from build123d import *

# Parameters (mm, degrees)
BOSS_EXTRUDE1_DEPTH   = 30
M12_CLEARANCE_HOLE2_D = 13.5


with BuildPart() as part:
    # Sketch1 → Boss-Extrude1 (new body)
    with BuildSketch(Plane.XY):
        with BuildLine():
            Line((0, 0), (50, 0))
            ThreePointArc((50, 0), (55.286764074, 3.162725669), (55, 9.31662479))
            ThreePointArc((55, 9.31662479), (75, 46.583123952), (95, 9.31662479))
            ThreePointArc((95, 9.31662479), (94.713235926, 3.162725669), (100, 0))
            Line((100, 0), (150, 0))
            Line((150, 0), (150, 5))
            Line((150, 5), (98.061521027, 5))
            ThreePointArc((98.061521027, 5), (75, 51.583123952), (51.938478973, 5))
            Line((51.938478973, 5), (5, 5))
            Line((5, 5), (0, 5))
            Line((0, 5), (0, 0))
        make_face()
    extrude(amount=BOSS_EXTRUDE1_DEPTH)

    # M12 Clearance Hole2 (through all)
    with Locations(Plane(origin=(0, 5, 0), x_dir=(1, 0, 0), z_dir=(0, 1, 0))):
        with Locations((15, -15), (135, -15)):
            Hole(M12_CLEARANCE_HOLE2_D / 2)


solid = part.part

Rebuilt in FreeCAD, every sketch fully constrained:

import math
import FreeCAD as App
import Part
import Sketcher
from FreeCAD import Vector
Q = App.Units.Quantity

doc = App.newDocument("Part")
body = doc.addObject("PartDesign::Body", "Body")

# Sketch on XY plane
sketch1 = body.newObject("Sketcher::SketchObject", "Sketch")
sketch1.AttachmentSupport = (doc.getObject("XY_Plane"), [""])
sketch1.MapMode = "FlatFace"
sketch1.addGeometry([
    Part.LineSegment(Vector(0, 0, 0), Vector(50, 0, 0)),  # 0
    Part.ArcOfCircle(Part.Circle(Vector(50, 6, 0), Vector(0, 0, 1), 6), math.radians(-90), math.radians(34)),  # 1
    Part.ArcOfCircle(Part.Circle(Vector(75, 23, 0), Vector(0, 0, 1), 24), math.radians(-34), math.radians(214)),  # 2
    Part.ArcOfCircle(Part.Circle(Vector(100, 6, 0), Vector(0, 0, 1), 6), math.radians(146), math.radians(270)),  # 3
    Part.LineSegment(Vector(100, 0, 0), Vector(150, 0, 0)),  # 4
    Part.LineSegment(Vector(150, 0, 0), Vector(150, 5, 0)),  # 5
    Part.LineSegment(Vector(150, 5, 0), Vector(98, 5, 0)),  # 6
    Part.ArcOfCircle(Part.Circle(Vector(75, 23, 0), Vector(0, 0, 1), 29), math.radians(-37), math.radians(217)),  # 7
    Part.LineSegment(Vector(52, 5, 0), Vector(0, 5, 0)),  # 8
    Part.LineSegment(Vector(0, 5, 0), Vector(0, 0, 0)),  # 9
], False)
sketch1.addConstraint([
    Sketcher.Constraint("Tangent", 0, 2, 1, 1),
    Sketcher.Constraint("Tangent", 1, 2, 2, 2),
    Sketcher.Constraint("Tangent", 2, 1, 3, 1),
    Sketcher.Constraint("Tangent", 3, 2, 4, 1),
    Sketcher.Constraint("Coincident", 4, 2, 5, 1),
    Sketcher.Constraint("Coincident", 5, 2, 6, 1),
    Sketcher.Constraint("Coincident", 6, 2, 7, 1),
    Sketcher.Constraint("Coincident", 7, 2, 8, 1),
    Sketcher.Constraint("Coincident", 8, 2, 9, 1),
    Sketcher.Constraint("Coincident", 9, 2, 0, 1),
    Sketcher.Constraint("Horizontal", 0),
    Sketcher.Constraint("Horizontal", 4),
    Sketcher.Constraint("Vertical", 5),
    Sketcher.Constraint("Horizontal", 6),
    Sketcher.Constraint("Horizontal", 8),
    Sketcher.Constraint("Vertical", 9),
    Sketcher.Constraint("Coincident", 9, 2, -1, 1),
    Sketcher.Constraint("Coincident", 7, 3, 2, 3),
    Sketcher.Constraint("Equal", 1, 3),
    Sketcher.Constraint("PointOnObject", 3, 2, -1),
    Sketcher.Constraint("Horizontal", 6, 2, 7, 2),
    Sketcher.Constraint("Equal", 0, 4),
    Sketcher.Constraint("Radius", 1, Q("6 mm")),
    Sketcher.Constraint("Radius", 2, Q("24 mm")),
    Sketcher.Constraint("Radius", 7, Q("29 mm")),
    Sketcher.Constraint("DistanceX", 0, 1, 0, 2, Q("50 mm")),
    Sketcher.Constraint("DistanceY", 5, 1, 5, 2, Q("5 mm")),
    Sketcher.Constraint("DistanceX", -1, 1, 2, 3, Q("75 mm")),
])
pad1 = body.newObject("PartDesign::Pad", "Pad")
pad1.Profile = sketch1
pad1.Length = 30

# Sketch on XZ plane
sketch2 = body.newObject("Sketcher::SketchObject", "Sketch001")
sketch2.AttachmentSupport = (doc.getObject("XZ_Plane"), [""])
sketch2.MapMode = "FlatFace"
sketch2.AttachmentOffset = App.Placement(Vector(0, 0, -5), App.Rotation())
sketch2.addGeometry([
    Part.Circle(Vector(15, 15, 0), Vector(0, 0, 1), 7),
    Part.Circle(Vector(135, 15, 0), Vector(0, 0, 1), 7),
], False)
sketch2.addConstraint([
    Sketcher.Constraint("Equal", 0, 1),
    Sketcher.Constraint("Horizontal", 0, 3, 1, 3),
    Sketcher.Constraint("Diameter", 0, Q("13.5 mm")),
    Sketcher.Constraint("DistanceX", -1, 1, 0, 3, Q("15 mm")),
    Sketcher.Constraint("DistanceY", -1, 1, 0, 3, Q("15 mm")),
    Sketcher.Constraint("DistanceX", -1, 1, 1, 3, Q("135 mm")),
])
doc.recompute()
hole = body.newObject("PartDesign::Hole", "Hole")
hole.Profile = sketch2
hole.ThreadType = "None"
hole.Diameter = 13.5
hole.DepthType = "ThroughAll"
hole.Reversed = True

doc.recompute()
